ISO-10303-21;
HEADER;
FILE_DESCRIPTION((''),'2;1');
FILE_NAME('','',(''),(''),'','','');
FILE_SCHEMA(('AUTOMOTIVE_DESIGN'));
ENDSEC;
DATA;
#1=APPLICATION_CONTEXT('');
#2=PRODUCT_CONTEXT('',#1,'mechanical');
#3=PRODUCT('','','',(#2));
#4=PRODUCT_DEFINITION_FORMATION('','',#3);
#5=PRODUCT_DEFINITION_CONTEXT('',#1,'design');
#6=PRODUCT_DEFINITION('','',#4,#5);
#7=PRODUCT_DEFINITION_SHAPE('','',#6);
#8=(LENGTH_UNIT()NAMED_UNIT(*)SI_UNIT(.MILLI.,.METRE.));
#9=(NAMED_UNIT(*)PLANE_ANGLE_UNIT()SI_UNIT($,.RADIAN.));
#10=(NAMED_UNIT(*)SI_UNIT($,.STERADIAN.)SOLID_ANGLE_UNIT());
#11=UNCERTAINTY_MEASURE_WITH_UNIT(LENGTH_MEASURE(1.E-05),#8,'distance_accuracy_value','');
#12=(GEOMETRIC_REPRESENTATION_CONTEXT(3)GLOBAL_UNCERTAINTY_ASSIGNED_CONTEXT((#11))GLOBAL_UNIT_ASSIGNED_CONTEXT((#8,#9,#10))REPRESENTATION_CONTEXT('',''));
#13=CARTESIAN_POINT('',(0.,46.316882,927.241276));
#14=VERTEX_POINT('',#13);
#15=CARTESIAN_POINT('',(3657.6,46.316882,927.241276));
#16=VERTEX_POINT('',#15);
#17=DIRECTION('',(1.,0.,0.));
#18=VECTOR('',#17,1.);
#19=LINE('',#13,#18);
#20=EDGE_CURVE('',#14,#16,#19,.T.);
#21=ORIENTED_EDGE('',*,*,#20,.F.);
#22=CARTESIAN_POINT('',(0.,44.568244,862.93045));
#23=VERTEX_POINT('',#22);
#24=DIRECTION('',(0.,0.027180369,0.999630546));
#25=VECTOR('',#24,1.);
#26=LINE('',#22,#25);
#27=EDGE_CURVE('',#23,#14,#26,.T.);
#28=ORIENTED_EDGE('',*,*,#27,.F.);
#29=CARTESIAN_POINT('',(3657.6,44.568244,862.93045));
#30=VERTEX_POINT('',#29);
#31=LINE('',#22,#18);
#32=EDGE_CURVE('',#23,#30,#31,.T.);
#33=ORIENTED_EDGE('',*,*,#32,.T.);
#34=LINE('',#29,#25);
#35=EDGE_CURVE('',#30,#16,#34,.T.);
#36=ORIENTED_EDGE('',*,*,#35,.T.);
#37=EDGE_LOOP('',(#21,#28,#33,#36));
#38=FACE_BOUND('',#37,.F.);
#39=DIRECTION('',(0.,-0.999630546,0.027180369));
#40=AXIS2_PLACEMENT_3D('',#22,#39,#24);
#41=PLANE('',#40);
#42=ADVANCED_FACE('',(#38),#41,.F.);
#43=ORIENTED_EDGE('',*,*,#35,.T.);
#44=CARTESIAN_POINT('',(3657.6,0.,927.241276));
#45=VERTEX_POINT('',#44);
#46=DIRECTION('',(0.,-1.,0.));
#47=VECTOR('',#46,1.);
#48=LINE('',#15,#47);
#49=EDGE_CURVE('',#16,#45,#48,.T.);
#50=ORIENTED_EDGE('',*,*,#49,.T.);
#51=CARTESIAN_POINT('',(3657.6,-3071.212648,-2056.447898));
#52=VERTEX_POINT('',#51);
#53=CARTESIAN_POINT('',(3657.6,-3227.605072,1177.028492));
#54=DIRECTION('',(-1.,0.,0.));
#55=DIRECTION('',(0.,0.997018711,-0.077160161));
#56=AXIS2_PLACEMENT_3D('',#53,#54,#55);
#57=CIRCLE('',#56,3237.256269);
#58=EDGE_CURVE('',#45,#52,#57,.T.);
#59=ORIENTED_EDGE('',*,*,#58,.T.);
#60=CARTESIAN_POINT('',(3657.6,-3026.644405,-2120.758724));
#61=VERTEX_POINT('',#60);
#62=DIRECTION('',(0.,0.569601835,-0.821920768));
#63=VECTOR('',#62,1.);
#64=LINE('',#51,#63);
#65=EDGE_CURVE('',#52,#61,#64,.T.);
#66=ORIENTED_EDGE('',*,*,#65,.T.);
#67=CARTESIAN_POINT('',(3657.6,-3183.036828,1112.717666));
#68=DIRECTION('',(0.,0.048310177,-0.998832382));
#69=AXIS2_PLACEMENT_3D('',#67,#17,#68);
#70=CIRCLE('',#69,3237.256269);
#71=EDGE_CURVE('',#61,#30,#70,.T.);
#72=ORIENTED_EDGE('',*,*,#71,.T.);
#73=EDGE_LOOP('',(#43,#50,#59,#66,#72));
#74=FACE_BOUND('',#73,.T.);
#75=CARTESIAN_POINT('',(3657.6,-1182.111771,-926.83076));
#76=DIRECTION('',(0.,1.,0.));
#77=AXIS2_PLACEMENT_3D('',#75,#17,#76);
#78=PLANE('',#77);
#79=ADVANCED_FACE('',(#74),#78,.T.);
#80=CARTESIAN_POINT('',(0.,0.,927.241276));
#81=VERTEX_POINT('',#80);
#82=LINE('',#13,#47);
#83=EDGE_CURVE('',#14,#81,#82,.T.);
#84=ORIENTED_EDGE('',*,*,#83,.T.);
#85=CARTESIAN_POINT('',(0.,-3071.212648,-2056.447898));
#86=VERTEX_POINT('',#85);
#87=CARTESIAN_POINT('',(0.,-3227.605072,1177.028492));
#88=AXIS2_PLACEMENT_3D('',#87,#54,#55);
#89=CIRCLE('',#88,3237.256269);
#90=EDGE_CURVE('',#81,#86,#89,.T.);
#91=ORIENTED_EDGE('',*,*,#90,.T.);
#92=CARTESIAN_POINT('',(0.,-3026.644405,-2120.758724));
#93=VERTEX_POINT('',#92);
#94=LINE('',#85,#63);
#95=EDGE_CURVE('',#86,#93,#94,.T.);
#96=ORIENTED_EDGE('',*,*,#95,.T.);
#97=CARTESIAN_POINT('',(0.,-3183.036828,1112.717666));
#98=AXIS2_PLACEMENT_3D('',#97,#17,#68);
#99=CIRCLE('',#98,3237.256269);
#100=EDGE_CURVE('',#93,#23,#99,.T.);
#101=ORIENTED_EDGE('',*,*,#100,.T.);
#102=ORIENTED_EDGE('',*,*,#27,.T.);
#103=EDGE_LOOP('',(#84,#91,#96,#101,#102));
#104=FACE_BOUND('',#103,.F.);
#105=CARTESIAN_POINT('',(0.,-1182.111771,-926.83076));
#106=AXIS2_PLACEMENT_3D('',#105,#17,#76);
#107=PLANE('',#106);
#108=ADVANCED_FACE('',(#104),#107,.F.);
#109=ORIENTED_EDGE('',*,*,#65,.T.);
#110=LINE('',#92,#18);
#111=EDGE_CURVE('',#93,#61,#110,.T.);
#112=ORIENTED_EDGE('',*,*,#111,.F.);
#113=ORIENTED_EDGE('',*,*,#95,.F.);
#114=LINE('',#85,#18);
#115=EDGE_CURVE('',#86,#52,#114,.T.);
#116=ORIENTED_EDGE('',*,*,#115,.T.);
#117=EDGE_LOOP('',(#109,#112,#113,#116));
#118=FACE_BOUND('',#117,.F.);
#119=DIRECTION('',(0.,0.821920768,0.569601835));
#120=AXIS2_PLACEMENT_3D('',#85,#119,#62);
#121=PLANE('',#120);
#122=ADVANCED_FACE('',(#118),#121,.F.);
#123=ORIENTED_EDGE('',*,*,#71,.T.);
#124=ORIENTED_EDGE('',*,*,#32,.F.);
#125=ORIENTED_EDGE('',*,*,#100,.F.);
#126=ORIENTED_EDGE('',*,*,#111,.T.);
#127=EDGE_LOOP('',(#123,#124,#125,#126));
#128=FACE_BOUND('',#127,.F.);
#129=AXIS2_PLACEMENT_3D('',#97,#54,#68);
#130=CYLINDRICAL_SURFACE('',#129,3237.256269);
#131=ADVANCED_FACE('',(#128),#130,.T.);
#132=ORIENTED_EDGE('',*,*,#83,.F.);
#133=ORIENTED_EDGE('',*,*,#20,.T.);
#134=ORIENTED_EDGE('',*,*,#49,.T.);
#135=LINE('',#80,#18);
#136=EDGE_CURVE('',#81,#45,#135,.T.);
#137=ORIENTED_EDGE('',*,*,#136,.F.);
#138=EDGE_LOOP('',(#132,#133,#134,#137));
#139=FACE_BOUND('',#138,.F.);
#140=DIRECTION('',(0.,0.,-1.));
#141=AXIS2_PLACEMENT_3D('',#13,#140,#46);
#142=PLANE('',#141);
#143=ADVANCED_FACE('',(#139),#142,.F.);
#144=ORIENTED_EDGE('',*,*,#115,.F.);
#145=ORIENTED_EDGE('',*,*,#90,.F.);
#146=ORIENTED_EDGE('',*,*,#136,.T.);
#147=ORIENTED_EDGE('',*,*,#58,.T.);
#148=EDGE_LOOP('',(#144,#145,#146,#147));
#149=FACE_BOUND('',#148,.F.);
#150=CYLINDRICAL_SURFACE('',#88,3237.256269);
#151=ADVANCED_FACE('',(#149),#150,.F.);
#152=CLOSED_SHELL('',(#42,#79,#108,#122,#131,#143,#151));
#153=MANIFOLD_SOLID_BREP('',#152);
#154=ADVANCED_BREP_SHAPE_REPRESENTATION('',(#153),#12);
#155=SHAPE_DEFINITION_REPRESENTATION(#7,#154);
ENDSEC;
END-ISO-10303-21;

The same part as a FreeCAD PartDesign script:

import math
import FreeCAD as App
import Part
import Sketcher
from FreeCAD import Vector
Q = App.Units.Quantity

doc = App.newDocument("Part")
params = doc.addObject("Spreadsheet::Sheet", "Params")
for row, (alias, value) in enumerate([
    ("pad1_length", "144 in"),
], start=1):
    params.set(f"A{row}", alias)
    params.set(f"B{row}", "=" + value)
    params.setAlias(f"B{row}", alias)

body = doc.addObject("PartDesign::Body", "Body")

# Sketch on YZ plane
sketch1 = body.newObject("Sketcher::SketchObject", "Sketch")
sketch1.AttachmentSupport = (doc.getObject("YZ_Plane"), [""])
sketch1.MapMode = "FlatFace"
sketch1.addGeometry(Part.ArcOfCircle(Part.Circle(Vector(-3227.605072, 1177.028492, 0), Vector(0, 0, 1), 3237.256269), math.radians(-87.230953), math.radians(-4.42535)), False)
sketch1.addGeometry(Part.LineSegment(Vector(-3071.212648, -2056.447898, 0), Vector(-3026.644405, -2120.758724, 0)), False)
sketch1.addGeometry(Part.ArcOfCircle(Part.Circle(Vector(-3183.036828, 1112.717666, 0), Vector(0, 0, 1), 3237.256269), math.radians(-87.230953), math.radians(-4.42535)), False)
sketch1.addGeometry(Part.LineSegment(Vector(44.568244, 862.93045, 0), Vector(46.316882, 927.241276, 0)), False)
sketch1.addGeometry(Part.LineSegment(Vector(46.316882, 927.241276, 0), Vector(0, 927.241276, 0)), False)
sketch1.addConstraint(Sketcher.Constraint("Coincident", 0, 1, 1, 1))
sketch1.addConstraint(Sketcher.Constraint("Coincident", 1, 2, 2, 1))
sketch1.addConstraint(Sketcher.Constraint("Coincident", 2, 2, 3, 1))
sketch1.addConstraint(Sketcher.Constraint("Coincident", 3, 2, 4, 1))
sketch1.addConstraint(Sketcher.Constraint("Coincident", 4, 2, 0, 2))
sketch1.addConstraint(Sketcher.Constraint("Horizontal", 4))
sketch1.addConstraint(Sketcher.Constraint("Equal", 0, 2))
sketch1.addConstraint(Sketcher.Constraint("PointOnObject", 4, 2, -2))
sketch1.addConstraint(Sketcher.Constraint("DistanceY", 1, 2, 3, 2, Q("120 in")))
sketch1.addConstraint(Sketcher.Constraint("Radius", 0, Q("3237.256269 mm")))
sketch1.addConstraint(Sketcher.Constraint("DistanceX", 4, 2, 4, 1, Q("46.316882 mm")))
sketch1.addConstraint(Sketcher.Constraint("DistanceX", 0, 3, -1, 1, Q("3227.605072 mm")))
sketch1.addConstraint(Sketcher.Constraint("DistanceY", -1, 1, 0, 3, Q("1177.028492 mm")))
sketch1.addConstraint(Sketcher.Constraint("DistanceY", 1, 2, 2, 3, Q("3233.47639 mm")))
sketch1.addConstraint(Sketcher.Constraint("DistanceX", 2, 3, 3, 2, Q("3229.35371 mm")))
sketch1.addConstraint(Sketcher.Constraint("Distance", 1, Q("78.244557 mm")))
sketch1.addConstraint(Sketcher.Constraint("Distance", 3, Q("64.334595 mm")))
pad1 = body.newObject("PartDesign::Pad", "Pad")
pad1.Profile = sketch1
pad1.setExpression("Length", "Params.pad1_length")

doc.recompute()
